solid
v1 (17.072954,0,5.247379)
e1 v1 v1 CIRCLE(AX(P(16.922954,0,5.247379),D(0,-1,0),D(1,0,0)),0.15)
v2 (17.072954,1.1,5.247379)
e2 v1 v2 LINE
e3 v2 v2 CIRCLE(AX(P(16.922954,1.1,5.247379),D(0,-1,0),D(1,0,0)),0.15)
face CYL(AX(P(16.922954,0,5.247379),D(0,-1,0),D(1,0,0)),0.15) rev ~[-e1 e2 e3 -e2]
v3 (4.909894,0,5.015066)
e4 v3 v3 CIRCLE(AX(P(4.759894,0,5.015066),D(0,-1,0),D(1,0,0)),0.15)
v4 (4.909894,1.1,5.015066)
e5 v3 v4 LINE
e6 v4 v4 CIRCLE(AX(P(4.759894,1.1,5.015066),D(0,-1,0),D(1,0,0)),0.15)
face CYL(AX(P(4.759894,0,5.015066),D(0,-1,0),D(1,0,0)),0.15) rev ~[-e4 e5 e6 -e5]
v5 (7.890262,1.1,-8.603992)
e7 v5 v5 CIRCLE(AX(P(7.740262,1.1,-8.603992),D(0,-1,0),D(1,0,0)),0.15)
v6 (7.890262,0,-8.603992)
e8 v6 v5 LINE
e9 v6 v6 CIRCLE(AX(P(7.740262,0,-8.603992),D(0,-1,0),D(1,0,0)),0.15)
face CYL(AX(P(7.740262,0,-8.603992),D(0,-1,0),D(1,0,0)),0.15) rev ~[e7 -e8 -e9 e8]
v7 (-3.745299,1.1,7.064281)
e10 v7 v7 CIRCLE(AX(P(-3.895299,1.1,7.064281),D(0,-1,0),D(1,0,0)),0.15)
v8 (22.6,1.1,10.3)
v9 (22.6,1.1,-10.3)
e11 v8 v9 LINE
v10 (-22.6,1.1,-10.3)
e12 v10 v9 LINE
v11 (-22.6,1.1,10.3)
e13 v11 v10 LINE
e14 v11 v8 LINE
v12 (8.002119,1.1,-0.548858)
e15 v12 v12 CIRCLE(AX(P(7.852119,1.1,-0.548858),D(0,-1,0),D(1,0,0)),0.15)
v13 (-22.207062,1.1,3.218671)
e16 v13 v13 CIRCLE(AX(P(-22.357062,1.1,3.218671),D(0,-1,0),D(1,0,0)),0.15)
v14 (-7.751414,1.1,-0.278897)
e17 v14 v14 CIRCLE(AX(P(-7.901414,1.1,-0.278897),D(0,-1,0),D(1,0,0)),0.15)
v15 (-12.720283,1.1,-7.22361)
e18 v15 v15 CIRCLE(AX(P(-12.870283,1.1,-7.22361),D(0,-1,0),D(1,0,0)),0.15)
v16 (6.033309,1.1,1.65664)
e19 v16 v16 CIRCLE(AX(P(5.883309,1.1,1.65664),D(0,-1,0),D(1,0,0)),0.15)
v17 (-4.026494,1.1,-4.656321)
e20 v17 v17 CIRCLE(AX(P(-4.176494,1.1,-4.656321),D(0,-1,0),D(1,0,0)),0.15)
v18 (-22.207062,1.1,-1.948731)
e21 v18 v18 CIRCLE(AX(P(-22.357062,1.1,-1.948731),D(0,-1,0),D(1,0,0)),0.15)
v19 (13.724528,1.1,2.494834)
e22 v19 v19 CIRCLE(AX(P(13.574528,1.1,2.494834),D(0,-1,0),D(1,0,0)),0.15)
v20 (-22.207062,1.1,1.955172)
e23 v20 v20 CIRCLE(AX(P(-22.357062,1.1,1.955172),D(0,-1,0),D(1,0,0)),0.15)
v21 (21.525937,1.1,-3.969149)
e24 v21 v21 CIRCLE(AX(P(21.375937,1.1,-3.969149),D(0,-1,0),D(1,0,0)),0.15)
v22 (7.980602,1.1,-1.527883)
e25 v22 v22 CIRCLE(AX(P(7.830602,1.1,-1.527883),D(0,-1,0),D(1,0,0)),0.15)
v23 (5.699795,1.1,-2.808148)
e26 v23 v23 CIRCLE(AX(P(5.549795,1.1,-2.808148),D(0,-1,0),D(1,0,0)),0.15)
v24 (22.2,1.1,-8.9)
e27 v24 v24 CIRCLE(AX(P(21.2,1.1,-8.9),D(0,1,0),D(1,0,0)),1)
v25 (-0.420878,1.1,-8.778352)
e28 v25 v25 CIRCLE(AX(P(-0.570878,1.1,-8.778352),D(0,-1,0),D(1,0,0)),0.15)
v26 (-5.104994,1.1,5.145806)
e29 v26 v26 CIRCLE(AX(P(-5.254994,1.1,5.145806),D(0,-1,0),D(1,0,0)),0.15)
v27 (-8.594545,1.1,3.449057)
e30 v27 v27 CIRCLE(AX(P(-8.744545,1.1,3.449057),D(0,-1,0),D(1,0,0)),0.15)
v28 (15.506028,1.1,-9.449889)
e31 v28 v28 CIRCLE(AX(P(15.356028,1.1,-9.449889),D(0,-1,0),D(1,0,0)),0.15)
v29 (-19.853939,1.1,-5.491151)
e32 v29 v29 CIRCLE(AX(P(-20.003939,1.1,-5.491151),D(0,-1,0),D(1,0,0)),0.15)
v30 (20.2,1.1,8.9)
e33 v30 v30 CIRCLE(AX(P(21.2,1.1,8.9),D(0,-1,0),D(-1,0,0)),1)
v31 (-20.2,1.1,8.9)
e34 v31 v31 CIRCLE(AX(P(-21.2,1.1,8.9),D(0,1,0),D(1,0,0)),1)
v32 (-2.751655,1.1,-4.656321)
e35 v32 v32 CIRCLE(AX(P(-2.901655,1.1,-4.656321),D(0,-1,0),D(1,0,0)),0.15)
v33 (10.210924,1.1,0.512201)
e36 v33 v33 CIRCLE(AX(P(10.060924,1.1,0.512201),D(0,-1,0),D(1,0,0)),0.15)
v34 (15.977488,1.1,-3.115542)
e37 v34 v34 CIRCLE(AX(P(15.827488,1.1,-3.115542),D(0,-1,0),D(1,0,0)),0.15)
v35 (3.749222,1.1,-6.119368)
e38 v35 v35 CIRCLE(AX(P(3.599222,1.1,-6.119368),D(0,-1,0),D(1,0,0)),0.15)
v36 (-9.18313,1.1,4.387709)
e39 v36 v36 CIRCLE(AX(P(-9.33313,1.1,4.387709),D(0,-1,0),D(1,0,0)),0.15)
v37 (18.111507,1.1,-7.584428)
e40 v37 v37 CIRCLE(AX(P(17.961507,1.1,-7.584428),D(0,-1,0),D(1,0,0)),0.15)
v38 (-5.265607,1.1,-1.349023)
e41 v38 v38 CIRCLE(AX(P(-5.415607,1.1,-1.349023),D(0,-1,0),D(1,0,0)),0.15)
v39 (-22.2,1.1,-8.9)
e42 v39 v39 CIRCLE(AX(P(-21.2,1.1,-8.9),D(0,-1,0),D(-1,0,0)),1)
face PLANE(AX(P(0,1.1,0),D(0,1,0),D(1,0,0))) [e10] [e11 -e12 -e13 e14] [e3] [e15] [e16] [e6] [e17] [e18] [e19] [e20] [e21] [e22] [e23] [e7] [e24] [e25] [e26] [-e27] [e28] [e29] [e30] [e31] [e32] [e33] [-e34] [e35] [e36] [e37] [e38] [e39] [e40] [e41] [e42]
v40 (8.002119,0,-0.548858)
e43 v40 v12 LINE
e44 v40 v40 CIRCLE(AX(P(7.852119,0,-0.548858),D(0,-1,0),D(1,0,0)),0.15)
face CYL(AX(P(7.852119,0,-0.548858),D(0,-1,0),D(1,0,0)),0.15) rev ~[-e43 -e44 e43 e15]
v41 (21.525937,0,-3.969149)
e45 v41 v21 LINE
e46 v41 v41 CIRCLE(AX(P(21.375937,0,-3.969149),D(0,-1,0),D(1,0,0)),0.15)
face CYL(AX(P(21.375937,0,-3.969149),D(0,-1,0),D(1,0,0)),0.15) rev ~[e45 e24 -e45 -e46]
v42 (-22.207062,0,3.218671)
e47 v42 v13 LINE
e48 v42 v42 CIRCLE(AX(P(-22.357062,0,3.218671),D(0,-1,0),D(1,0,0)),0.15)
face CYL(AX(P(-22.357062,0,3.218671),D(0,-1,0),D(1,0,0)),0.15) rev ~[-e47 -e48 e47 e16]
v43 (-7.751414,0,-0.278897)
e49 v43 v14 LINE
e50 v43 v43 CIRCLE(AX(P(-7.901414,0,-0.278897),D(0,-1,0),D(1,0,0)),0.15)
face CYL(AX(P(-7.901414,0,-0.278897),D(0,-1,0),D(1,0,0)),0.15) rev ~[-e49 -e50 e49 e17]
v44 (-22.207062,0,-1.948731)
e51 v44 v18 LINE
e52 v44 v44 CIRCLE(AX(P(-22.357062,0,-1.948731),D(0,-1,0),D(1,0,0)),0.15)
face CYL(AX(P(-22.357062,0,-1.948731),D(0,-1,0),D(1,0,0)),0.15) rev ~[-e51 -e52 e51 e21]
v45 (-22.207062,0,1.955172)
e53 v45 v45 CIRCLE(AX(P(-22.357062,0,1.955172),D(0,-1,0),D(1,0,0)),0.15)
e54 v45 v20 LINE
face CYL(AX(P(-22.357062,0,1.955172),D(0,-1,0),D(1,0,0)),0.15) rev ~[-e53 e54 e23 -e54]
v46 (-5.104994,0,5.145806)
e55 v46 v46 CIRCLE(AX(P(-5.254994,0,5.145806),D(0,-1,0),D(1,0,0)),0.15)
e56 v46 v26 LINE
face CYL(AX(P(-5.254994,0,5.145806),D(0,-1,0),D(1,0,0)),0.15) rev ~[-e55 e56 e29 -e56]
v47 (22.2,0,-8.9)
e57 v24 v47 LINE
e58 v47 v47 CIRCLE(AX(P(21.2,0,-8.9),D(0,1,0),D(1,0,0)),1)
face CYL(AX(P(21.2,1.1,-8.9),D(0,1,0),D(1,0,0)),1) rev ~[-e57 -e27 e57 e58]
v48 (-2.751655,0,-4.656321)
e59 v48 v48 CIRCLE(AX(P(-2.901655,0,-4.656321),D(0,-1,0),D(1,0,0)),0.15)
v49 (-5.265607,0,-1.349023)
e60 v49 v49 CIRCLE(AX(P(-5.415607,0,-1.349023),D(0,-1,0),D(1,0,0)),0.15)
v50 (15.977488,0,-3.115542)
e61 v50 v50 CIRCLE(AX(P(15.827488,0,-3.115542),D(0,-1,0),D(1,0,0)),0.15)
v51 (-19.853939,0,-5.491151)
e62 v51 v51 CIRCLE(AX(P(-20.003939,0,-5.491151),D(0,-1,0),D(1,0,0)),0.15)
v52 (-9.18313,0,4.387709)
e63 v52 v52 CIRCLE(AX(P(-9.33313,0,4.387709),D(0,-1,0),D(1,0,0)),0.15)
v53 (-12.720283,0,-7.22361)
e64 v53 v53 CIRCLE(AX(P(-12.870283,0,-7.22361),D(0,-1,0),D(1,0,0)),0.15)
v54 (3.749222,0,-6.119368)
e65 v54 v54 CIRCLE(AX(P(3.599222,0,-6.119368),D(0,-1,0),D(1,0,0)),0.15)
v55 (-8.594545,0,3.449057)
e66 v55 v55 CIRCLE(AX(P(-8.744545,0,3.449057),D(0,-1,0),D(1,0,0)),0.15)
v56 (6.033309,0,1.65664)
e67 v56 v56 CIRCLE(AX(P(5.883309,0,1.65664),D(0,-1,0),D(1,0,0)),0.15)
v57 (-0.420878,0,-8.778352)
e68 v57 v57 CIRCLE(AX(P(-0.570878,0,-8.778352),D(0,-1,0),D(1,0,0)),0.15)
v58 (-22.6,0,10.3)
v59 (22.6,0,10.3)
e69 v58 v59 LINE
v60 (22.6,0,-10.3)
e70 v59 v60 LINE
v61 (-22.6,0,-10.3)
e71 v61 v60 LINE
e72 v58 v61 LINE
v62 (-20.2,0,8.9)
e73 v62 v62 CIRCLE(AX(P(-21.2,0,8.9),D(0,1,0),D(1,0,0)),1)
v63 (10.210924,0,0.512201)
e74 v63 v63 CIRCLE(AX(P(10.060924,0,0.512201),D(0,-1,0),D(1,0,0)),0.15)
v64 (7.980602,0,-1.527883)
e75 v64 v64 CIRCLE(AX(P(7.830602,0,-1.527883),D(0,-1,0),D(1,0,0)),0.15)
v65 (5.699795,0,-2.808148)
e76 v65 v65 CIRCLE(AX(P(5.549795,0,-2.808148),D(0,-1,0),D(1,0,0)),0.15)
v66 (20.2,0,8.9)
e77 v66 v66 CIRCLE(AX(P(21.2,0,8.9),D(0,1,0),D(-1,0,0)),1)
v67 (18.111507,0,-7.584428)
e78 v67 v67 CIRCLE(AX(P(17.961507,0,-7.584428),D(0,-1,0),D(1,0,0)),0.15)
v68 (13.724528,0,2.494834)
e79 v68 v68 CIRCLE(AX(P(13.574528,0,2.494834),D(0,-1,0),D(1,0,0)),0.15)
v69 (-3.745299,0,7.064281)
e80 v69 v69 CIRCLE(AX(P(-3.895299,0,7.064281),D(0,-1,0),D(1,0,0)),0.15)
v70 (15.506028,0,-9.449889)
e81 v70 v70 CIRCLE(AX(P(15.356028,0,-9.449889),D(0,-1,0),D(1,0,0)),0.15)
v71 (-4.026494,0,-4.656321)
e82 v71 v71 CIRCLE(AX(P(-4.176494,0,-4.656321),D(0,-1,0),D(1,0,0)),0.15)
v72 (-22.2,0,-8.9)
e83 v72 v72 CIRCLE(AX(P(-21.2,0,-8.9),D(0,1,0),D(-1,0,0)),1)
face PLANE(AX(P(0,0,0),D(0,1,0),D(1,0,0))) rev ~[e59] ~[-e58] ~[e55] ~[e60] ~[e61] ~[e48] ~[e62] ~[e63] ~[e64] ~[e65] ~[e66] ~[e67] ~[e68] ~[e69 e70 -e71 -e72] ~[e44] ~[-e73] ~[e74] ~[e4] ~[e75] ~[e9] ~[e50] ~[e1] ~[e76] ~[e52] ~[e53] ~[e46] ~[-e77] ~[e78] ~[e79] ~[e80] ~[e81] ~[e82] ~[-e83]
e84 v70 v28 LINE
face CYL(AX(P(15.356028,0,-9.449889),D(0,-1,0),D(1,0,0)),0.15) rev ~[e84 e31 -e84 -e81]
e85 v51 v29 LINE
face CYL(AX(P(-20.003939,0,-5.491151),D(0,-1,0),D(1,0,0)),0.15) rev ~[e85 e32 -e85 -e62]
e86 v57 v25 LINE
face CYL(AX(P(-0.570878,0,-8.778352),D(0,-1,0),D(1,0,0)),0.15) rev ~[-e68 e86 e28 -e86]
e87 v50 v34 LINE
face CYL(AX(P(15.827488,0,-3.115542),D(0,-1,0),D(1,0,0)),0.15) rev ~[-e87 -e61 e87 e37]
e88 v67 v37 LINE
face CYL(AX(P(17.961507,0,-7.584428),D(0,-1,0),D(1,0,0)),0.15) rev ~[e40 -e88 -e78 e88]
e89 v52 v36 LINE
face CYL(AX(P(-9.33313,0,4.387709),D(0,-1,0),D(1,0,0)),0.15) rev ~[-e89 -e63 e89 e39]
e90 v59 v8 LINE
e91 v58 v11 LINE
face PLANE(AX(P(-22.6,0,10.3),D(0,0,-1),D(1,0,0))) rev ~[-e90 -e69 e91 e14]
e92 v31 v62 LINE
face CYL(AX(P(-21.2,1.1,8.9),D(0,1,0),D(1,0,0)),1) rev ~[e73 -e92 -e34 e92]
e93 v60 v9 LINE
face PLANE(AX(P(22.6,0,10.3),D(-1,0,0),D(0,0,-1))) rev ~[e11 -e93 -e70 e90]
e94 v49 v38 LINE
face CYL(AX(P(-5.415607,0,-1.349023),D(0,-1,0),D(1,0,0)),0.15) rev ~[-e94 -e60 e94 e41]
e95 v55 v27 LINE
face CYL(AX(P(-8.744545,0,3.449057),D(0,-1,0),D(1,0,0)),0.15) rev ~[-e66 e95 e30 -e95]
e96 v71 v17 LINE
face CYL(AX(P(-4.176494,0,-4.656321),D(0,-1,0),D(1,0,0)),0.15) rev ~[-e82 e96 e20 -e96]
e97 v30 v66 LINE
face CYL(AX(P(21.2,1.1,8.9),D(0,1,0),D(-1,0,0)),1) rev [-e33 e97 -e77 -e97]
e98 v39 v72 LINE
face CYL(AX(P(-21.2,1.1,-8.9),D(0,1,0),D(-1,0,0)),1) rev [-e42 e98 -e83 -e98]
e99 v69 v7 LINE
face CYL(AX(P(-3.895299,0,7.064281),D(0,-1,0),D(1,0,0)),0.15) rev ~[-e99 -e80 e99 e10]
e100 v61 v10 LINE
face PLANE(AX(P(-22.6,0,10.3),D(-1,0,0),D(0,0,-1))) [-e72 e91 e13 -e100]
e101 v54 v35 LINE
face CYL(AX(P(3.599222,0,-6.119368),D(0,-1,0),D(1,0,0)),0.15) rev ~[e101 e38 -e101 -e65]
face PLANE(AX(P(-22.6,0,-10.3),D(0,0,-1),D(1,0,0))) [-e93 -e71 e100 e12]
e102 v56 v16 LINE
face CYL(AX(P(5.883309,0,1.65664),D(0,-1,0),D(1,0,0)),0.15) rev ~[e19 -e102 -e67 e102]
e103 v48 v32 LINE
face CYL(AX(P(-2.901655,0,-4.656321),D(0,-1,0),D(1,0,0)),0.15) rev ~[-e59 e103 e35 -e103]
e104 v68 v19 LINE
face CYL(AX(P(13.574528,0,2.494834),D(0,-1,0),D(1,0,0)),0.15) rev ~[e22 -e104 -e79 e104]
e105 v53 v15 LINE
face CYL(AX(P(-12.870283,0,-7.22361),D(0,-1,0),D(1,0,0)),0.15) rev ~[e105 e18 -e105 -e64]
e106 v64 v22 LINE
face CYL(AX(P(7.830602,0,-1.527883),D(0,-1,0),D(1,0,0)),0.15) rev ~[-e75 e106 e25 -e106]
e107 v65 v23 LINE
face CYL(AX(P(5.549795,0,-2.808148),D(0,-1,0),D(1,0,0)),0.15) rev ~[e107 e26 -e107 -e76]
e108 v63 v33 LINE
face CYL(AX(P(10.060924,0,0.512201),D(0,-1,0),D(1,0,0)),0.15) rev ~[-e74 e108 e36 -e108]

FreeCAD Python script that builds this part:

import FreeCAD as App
import Part
import Sketcher
from FreeCAD import Vector
Q = App.Units.Quantity

doc = App.newDocument("Part")
params = doc.addObject("Spreadsheet::Sheet", "Params")
for row, (alias, value) in enumerate([
    ("sketch1_width", "45.2 mm"),
    ("sketch1_height", "20.6 mm"),
    ("pad1_length", "1.1 mm"),
    ("sketch2_diameter", "2 mm"),
    ("sketch3_diameter", "0.3 mm"),
    ("pocket2_length", "1.1 mm"),
], start=1):
    params.set(f"A{row}", alias)
    params.set(f"B{row}", "=" + value)
    params.setAlias(f"B{row}", alias)

body = doc.addObject("PartDesign::Body", "Body")

# Sketch on XZ plane
sketch1 = doc.addObject("Sketcher::SketchObject", "Sketch")
body.addObject(sketch1)
sketch1.AttachmentSupport = (doc.XZ_Plane, [""])
sketch1.MapMode = "FlatFace"
sketch1.addGeometry([
    Part.LineSegment(Vector(-23, -10, 0), Vector(-23, 10, 0)),
    Part.LineSegment(Vector(-23, 10, 0), Vector(23, 10, 0)),
    Part.LineSegment(Vector(23, 10, 0), Vector(23, -10, 0)),
    Part.LineSegment(Vector(23, -10, 0), Vector(-23, -10, 0)),
], False)
sketch1.addConstraint([
    Sketcher.Constraint("Coincident", 0, 2, 1, 1),
    Sketcher.Constraint("Coincident", 1, 2, 2, 1),
    Sketcher.Constraint("Coincident", 2, 2, 3, 1),
    Sketcher.Constraint("Coincident", 3, 2, 0, 1),
    Sketcher.Constraint("Vertical", 0),
    Sketcher.Constraint("Horizontal", 1),
    Sketcher.Constraint("Vertical", 2),
    Sketcher.Constraint("Horizontal", 3),
    Sketcher.Constraint("Symmetric", 0, 2, 2, 2, -1, 1),
    Sketcher.Constraint("DistanceX", 1, 1, 1, 2, Q("45.2 mm")),
    Sketcher.Constraint("DistanceY", 0, 1, 0, 2, Q("20.6 mm")),
])
sketch1.setExpression("Constraints[9]", "Params.sketch1_width")
sketch1.setExpression("Constraints[10]", "Params.sketch1_height")
pad1 = doc.addObject("PartDesign::Pad", "Pad")
body.addObject(pad1)
pad1.Profile = sketch1
pad1.setExpression("Length", "Params.pad1_length")
pad1.Reversed = True

# Sketch on XZ plane
sketch2 = doc.addObject("Sketcher::SketchObject", "Sketch001")
body.addObject(sketch2)
sketch2.AttachmentSupport = (doc.XZ_Plane, [""])
sketch2.MapMode = "FlatFace"
sketch2.AttachmentOffset = App.Placement(Vector(0, 0, -1.1), App.Rotation())
sketch2.addGeometry([
    Part.Circle(Vector(-21.2, 8.9, 0), Vector(0, 0, 1), 1),
    Part.Circle(Vector(21.2, -8.9, 0), Vector(0, 0, 1), 1),
], False)
sketch2.addConstraint([
    Sketcher.Constraint("Equal", 0, 1),
    Sketcher.Constraint("Symmetric", 0, 3, 1, 3, -1, 1),
    Sketcher.Constraint("Diameter", 0, Q("2 mm")),
    Sketcher.Constraint("DistanceX", 0, 3, -1, 1, Q("21.2 mm")),
    Sketcher.Constraint("DistanceY", -1, 1, 0, 3, Q("8.9 mm")),
])
sketch2.setExpression("Constraints[2]", "Params.sketch2_diameter")
pocket1 = doc.addObject("PartDesign::Pocket", "Pocket")
body.addObject(pocket1)
pocket1.Profile = sketch2
pocket1.Type = "ThroughAll"
pocket1.Reversed = True

# Sketch on XZ plane
sketch3 = doc.addObject("Sketcher::SketchObject", "Sketch002")
body.addObject(sketch3)
sketch3.AttachmentSupport = (doc.XZ_Plane, [""])
sketch3.MapMode = "FlatFace"
sketch3.addGeometry([
    Part.Circle(Vector(-9.33, 4.39, 0), Vector(0, 0, 1), 0.15),  # 0
    Part.Circle(Vector(-8.74, 3.45, 0), Vector(0, 0, 1), 0.15),  # 1
    Part.Circle(Vector(4.76, 5.02, 0), Vector(0, 0, 1), 0.15),  # 2
    Part.Circle(Vector(16.92, 5.25, 0), Vector(0, 0, 1), 0.15),  # 3
    Part.Circle(Vector(7.83, -1.53, 0), Vector(0, 0, 1), 0.15),  # 4
    Part.Circle(Vector(7.85, -0.55, 0), Vector(0, 0, 1), 0.15),  # 5
    Part.Circle(Vector(5.55, -2.81, 0), Vector(0, 0, 1), 0.15),  # 6
    Part.Circle(Vector(5.88, 1.66, 0), Vector(0, 0, 1), 0.15),  # 7
    Part.Circle(Vector(15.83, -3.12, 0), Vector(0, 0, 1), 0.15),  # 8
    Part.Circle(Vector(21.38, -3.97, 0), Vector(0, 0, 1), 0.15),  # 9
    Part.Circle(Vector(17.96, -7.58, 0), Vector(0, 0, 1), 0.15),  # 10
    Part.Circle(Vector(15.36, -9.45, 0), Vector(0, 0, 1), 0.15),  # 11
    Part.Circle(Vector(3.6, -6.12, 0), Vector(0, 0, 1), 0.15),  # 12
    Part.Circle(Vector(7.74, -8.6, 0), Vector(0, 0, 1), 0.15),  # 13
    Part.Circle(Vector(-0.57, -8.78, 0), Vector(0, 0, 1), 0.15),  # 14
    Part.Circle(Vector(-2.9, -4.66, 0), Vector(0, 0, 1), 0.15),  # 15
    Part.Circle(Vector(-4.18, -4.66, 0), Vector(0, 0, 1), 0.15),  # 16
    Part.Circle(Vector(-5.42, -1.35, 0), Vector(0, 0, 1), 0.15),  # 17
    Part.Circle(Vector(-7.9, -0.28, 0), Vector(0, 0, 1), 0.15),  # 18
    Part.Circle(Vector(-5.25, 5.15, 0), Vector(0, 0, 1), 0.15),  # 19
    Part.Circle(Vector(-3.9, 7.06, 0), Vector(0, 0, 1), 0.15),  # 20
    Part.Circle(Vector(13.57, 2.49, 0), Vector(0, 0, 1), 0.15),  # 21
    Part.Circle(Vector(10.06, 0.51, 0), Vector(0, 0, 1), 0.15),  # 22
    Part.Circle(Vector(-12.87, -7.22, 0), Vector(0, 0, 1), 0.15),  # 23
    Part.Circle(Vector(-20, -5.49, 0), Vector(0, 0, 1), 0.15),  # 24
    Part.Circle(Vector(-22.36, 3.22, 0), Vector(0, 0, 1), 0.15),  # 25
    Part.Circle(Vector(-22.36, 1.96, 0), Vector(0, 0, 1), 0.15),  # 26
    Part.Circle(Vector(-22.36, -1.95, 0), Vector(0, 0, 1), 0.15),  # 27
], False)
sketch3.addConstraint([
    Sketcher.Constraint("Equal", 0, 1),
    Sketcher.Constraint("Equal", 1, 2),
    Sketcher.Constraint("Equal", 2, 3),
    Sketcher.Constraint("Equal", 3, 4),
    Sketcher.Constraint("Equal", 4, 5),
    Sketcher.Constraint("Equal", 5, 6),
    Sketcher.Constraint("Equal", 6, 7),
    Sketcher.Constraint("Equal", 7, 8),
    Sketcher.Constraint("Equal", 8, 9),
    Sketcher.Constraint("Equal", 9, 10),
    Sketcher.Constraint("Equal", 10, 11),
    Sketcher.Constraint("Equal", 11, 12),
    Sketcher.Constraint("Equal", 12, 13),
    Sketcher.Constraint("Equal", 13, 14),
    Sketcher.Constraint("Equal", 14, 15),
    Sketcher.Constraint("Equal", 15, 16),
    Sketcher.Constraint("Equal", 16, 17),
    Sketcher.Constraint("Equal", 17, 18),
    Sketcher.Constraint("Equal", 18, 19),
    Sketcher.Constraint("Equal", 19, 20),
    Sketcher.Constraint("Equal", 20, 21),
    Sketcher.Constraint("Equal", 21, 22),
    Sketcher.Constraint("Equal", 22, 23),
    Sketcher.Constraint("Equal", 23, 24),
    Sketcher.Constraint("Equal", 24, 25),
    Sketcher.Constraint("Equal", 25, 26),
    Sketcher.Constraint("Equal", 26, 27),
    Sketcher.Constraint("Horizontal", 15, 3, 16, 3),
    Sketcher.Constraint("Vertical", 25, 3, 26, 3),
    Sketcher.Constraint("Vertical", 26, 3, 27, 3),
    Sketcher.Constraint("Diameter", 0, Q("0.3 mm")),
    Sketcher.Constraint("DistanceY", 9, 3, 6, 3, Q("1.161001 mm")),
    Sketcher.Constraint("DistanceX", -1, 1, 4, 3, Q("7.830602 mm")),
    Sketcher.Constraint("DistanceX", 20, 3, -1, 1, Q("3.895299 mm")),
    Sketcher.Constraint("DistanceY", -1, 1, 22, 3, Q("0.512201 mm")),
    Sketcher.Constraint("DistanceX", 1, 3, 3, 3, Q("25.667499 mm")),
    Sketcher.Constraint("DistanceX", 2, 3, 6, 3, Q("0.7899 mm")),
    Sketcher.Constraint("DistanceX", 14, 3, 12, 3, Q("4.1701 mm")),
    Sketcher.Constraint("DistanceX", 19, 3, 16, 3, Q("1.0785 mm")),
    Sketcher.Constraint("DistanceY", 26, 3, 25, 3, Q("1.263499 mm")),
    Sketcher.Constraint("DistanceY", 27, 3, 25, 3, Q("5.167402 mm")),
    Sketcher.Constraint("DistanceX", 0, 3, -1, 1, Q("9.33313 mm")),
    Sketcher.Constraint("DistanceY", -1, 1, 0, 3, Q("4.387709 mm")),
    Sketcher.Constraint("DistanceY", -1, 1, 3, 3, Q("5.247379 mm")),
    Sketcher.Constraint("DistanceX", -1, 1, 5, 3, Q("7.852119 mm")),
    Sketcher.Constraint("DistanceX", -1, 1, 7, 3, Q("5.883309 mm")),
    Sketcher.Constraint("DistanceY", -1, 1, 7, 3, Q("1.65664 mm")),
    Sketcher.Constraint("DistanceX", -1, 1, 8, 3, Q("15.827488 mm")),
    Sketcher.Constraint("DistanceY", 8, 3, -1, 1, Q("3.115542 mm")),
    Sketcher.Constraint("DistanceY", 9, 3, -1, 1, Q("3.969149 mm")),
    Sketcher.Constraint("DistanceX", -1, 1, 11, 3, Q("15.356028 mm")),
    Sketcher.Constraint("DistanceY", 11, 3, -1, 1, Q("9.449889 mm")),
    Sketcher.Constraint("DistanceX", -1, 1, 12, 3, Q("3.599222 mm")),
    Sketcher.Constraint("DistanceY", 13, 3, -1, 1, Q("8.603992 mm")),
    Sketcher.Constraint("DistanceY", 14, 3, -1, 1, Q("8.778352 mm")),
    Sketcher.Constraint("DistanceY", 15, 3, -1, 1, Q("4.656321 mm")),
    Sketcher.Constraint("DistanceY", -1, 1, 20, 3, Q("7.064281 mm")),
    Sketcher.Constraint("DistanceX", -1, 1, 21, 3, Q("13.574528 mm")),
    Sketcher.Constraint("DistanceY", 23, 3, -1, 1, Q("7.22361 mm")),
    Sketcher.Constraint("DistanceX", 24, 3, -1, 1, Q("20.003939 mm")),
    Sketcher.Constraint("DistanceY", 24, 3, -1, 1, Q("5.491151 mm")),
    Sketcher.Constraint("DistanceX", 25, 3, -1, 1, Q("22.357062 mm")),
    Sketcher.Constraint("DistanceY", -1, 1, 25, 3, Q("3.218671 mm")),
    Sketcher.Constraint("DistanceX", 1, 3, 2, 3, Q("13.504439 mm")),
    Sketcher.Constraint("DistanceY", 1, 3, 2, 3, Q("1.56601 mm")),
    Sketcher.Constraint("DistanceY", 4, 3, 2, 3, Q("6.54295 mm")),
    Sketcher.Constraint("DistanceY", 6, 3, 5, 3, Q("2.25929 mm")),
    Sketcher.Constraint("DistanceY", 8, 3, 4, 3, Q("1.587658 mm")),
    Sketcher.Constraint("DistanceX", 8, 3, 9, 3, Q("5.548449 mm")),
    Sketcher.Constraint("DistanceX", 8, 3, 10, 3, Q("2.134019 mm")),
    Sketcher.Constraint("DistanceY", 10, 3, 9, 3, Q("3.615279 mm")),
    Sketcher.Constraint("DistanceY", 12, 3, 6, 3, Q("3.31122 mm")),
    Sketcher.Constraint("DistanceX", 12, 3, 13, 3, Q("4.14104 mm")),
    Sketcher.Constraint("DistanceX", 15, 3, 6, 3, Q("8.451449 mm")),
    Sketcher.Constraint("DistanceX", 16, 3, 15, 3, Q("1.27484 mm")),
    Sketcher.Constraint("DistanceX", 1, 3, 17, 3, Q("3.328938 mm")),
    Sketcher.Constraint("DistanceY", 17, 3, 1, 3, Q("4.79808 mm")),
    Sketcher.Constraint("DistanceX", 17, 3, 14, 3, Q("4.844729 mm")),
    Sketcher.Constraint("DistanceX", 1, 3, 18, 3, Q("0.843131 mm")),
    Sketcher.Constraint("DistanceY", 1, 3, 19, 3, Q("1.69675 mm")),
    Sketcher.Constraint("DistanceY", 5, 3, 21, 3, Q("3.043691 mm")),
    Sketcher.Constraint("DistanceX", 6, 3, 22, 3, Q("4.511129 mm")),
    Sketcher.Constraint("DistanceX", 23, 3, 18, 3, Q("4.968869 mm")),
    Sketcher.Constraint("DistanceY", 18, 3, -1, 1, Q("0.278897 mm")),
])
sketch3.setExpression("Constraints[30]", "Params.sketch3_diameter")
pocket2 = doc.addObject("PartDesign::Pocket", "Pocket001")
body.addObject(pocket2)
pocket2.Profile = sketch3
pocket2.setExpression("Length", "Params.pocket2_length")
doc.recompute()

mirrored = doc.addObject("PartDesign::Mirrored", "Mirrored")
body.addObject(mirrored)
mirrored.Originals = [pocket1]
mirrored.MirrorPlane = (doc.YZ_Plane, [""])
body.Tip = mirrored

doc.recompute()
